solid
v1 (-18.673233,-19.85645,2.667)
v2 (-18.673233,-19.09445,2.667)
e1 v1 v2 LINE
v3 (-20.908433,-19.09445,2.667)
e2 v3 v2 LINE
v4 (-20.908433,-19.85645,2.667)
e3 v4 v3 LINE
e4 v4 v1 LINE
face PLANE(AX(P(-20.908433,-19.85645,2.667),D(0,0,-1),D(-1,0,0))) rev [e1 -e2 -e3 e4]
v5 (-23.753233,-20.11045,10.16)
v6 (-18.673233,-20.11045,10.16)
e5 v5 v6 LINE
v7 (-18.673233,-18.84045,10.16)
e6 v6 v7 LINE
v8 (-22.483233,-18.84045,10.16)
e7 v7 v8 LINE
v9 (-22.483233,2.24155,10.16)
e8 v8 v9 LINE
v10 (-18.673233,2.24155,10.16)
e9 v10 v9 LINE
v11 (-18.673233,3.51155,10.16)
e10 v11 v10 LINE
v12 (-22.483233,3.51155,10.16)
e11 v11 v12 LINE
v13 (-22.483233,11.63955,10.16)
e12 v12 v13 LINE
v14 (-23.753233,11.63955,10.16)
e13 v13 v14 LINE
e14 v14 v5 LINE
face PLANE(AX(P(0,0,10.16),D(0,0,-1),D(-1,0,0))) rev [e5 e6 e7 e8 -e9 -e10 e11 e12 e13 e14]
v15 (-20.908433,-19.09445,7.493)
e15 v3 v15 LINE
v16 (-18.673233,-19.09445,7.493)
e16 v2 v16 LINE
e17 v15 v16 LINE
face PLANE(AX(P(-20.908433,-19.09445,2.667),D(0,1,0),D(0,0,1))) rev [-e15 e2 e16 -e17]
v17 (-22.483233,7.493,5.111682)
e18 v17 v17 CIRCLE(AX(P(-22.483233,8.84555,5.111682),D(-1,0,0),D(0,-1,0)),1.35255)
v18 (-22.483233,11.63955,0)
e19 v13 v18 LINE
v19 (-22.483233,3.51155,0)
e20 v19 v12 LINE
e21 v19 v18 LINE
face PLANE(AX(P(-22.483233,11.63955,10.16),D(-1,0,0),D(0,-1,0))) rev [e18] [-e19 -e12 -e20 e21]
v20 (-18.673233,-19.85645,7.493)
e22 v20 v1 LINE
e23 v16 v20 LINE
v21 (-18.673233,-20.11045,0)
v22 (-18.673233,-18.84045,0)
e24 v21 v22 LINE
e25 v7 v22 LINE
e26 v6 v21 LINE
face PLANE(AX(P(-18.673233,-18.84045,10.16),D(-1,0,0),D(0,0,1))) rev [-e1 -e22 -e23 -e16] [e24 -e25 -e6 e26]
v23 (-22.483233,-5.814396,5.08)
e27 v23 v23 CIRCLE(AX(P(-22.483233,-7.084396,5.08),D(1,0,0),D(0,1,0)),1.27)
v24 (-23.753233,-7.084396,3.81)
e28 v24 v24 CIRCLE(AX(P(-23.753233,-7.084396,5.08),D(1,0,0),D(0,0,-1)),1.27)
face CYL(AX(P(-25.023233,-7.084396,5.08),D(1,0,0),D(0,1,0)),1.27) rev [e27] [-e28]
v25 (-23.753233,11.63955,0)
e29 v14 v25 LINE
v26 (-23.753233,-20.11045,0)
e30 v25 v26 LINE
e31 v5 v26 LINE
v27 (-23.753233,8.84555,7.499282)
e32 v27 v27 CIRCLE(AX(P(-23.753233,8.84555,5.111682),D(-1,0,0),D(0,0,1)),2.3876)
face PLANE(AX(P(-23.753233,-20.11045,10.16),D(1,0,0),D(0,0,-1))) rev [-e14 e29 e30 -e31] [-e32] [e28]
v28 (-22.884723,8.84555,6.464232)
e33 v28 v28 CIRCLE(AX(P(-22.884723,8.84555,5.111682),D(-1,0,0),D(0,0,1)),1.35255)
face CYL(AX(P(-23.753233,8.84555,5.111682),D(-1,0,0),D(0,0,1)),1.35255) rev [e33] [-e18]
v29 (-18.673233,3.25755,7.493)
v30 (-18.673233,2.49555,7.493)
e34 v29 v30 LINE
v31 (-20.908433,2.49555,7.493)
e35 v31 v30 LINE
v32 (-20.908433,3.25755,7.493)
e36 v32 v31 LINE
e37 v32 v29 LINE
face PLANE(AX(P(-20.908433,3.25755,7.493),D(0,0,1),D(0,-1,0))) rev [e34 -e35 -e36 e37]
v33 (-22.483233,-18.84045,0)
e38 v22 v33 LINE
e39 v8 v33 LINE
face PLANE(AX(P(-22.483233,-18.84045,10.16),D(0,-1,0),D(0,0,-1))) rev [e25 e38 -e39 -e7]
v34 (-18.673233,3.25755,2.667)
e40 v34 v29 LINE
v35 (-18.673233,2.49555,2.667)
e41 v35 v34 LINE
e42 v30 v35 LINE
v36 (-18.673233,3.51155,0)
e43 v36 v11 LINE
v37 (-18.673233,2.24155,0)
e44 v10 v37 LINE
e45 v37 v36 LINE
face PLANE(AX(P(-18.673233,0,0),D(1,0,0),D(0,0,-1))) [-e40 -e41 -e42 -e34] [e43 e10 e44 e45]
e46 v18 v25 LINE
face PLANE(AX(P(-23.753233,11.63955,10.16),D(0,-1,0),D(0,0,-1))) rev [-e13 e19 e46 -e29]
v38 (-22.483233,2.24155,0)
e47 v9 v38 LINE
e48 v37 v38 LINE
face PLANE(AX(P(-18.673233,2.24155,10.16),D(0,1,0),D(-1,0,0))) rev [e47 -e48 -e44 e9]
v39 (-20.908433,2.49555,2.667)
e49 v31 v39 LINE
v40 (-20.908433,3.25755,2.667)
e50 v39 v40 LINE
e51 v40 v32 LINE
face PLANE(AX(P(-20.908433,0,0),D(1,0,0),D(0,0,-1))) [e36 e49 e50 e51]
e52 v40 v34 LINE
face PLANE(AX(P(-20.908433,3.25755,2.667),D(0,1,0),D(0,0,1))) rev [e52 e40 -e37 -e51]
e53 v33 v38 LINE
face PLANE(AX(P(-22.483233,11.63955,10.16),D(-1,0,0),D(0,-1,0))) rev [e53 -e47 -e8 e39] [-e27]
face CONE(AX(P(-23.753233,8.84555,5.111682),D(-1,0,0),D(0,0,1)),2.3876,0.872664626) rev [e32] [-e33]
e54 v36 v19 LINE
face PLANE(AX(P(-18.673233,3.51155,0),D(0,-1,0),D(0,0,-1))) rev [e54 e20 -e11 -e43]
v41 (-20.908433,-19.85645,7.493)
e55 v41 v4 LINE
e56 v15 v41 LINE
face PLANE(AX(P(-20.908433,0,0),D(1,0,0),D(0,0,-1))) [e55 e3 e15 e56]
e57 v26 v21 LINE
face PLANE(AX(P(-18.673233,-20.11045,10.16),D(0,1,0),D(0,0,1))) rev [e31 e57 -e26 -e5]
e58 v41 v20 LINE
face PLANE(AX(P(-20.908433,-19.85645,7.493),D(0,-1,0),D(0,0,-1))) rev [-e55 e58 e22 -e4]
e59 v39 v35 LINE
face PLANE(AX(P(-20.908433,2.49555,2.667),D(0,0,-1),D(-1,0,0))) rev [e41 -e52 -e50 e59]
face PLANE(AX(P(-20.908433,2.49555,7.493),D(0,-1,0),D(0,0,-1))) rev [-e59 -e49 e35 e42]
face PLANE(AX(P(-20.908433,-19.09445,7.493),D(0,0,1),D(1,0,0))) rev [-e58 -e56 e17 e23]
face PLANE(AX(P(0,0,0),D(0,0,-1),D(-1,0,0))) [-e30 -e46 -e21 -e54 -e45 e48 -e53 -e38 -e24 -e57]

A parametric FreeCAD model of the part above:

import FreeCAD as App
import Part
import Sketcher
Q = App.Units.Quantity

doc = App.newDocument("Part")
params = doc.addObject("Spreadsheet::Sheet", "Params")
for row, (alias, value) in enumerate([
    ("sketch1_width", "0.2 in"),
    ("sketch1_height", "1.2 in"),
    ("sketch1_width2", "0.05 in"),
    ("pad1_length", "0.4 in"),
    ("sketch2_height", "0.4 in"),
    ("sketch2_width", "0.05 in"),
    ("pad2_length", "0.15 in"),
    ("sketch3_width", "0.03 in"),
    ("sketch3_height", "0.19 in"),
    ("pocket1_length", "0.088 in"),
    ("sketch4_width", "0.03 in"),
    ("sketch4_height", "0.19 in"),
    ("pocket2_length", "0.088 in"),
    ("sketch5_diameter", "0.1 in"),
    ("pocket3_length", "0.1 in"),
    ("hole_diameter", "0.1065 in"),
    ("hole_depth", "0.37 in"),
    ("hole_csink_diameter", "0.188 in"),
], start=1):
    params.set(f"A{row}", alias)
    params.set(f"B{row}", "=" + value)
    params.setAlias(f"B{row}", alias)

body = doc.addObject("PartDesign::Body", "Body")

# Sketch on XY plane
sketch1 = body.newObject("Sketcher::SketchObject", "Sketch")
sketch1.AttachmentSupport = (doc.getObject("XY_Plane"), [""])
sketch1.MapMode = "FlatFace"
sketch1.addGeometry([
    Part.LineSegment(App.Vector(-22.483233, -18.84045, 0), App.Vector(-22.483233, 11.63955, 0)),  # 0
    Part.LineSegment(App.Vector(-22.483233, 11.63955, 0), App.Vector(-23.753233, 11.63955, 0)),  # 1
    Part.LineSegment(App.Vector(-23.753233, 11.63955, 0), App.Vector(-23.753233, -20.11045, 0)),  # 2
    Part.LineSegment(App.Vector(-23.753233, -20.11045, 0), App.Vector(-18.673233, -20.11045, 0)),  # 3
    Part.LineSegment(App.Vector(-18.673233, -20.11045, 0), App.Vector(-18.673233, -18.84045, 0)),  # 4
    Part.LineSegment(App.Vector(-18.673233, -18.84045, 0), App.Vector(-22.483233, -18.84045, 0)),  # 5
], False)
sketch1.addConstraint([
    Sketcher.Constraint("Coincident", 0, 2, 1, 1),
    Sketcher.Constraint("Coincident", 1, 2, 2, 1),
    Sketcher.Constraint("Coincident", 2, 2, 3, 1),
    Sketcher.Constraint("Coincident", 3, 2, 4, 1),
    Sketcher.Constraint("Coincident", 4, 2, 5, 1),
    Sketcher.Constraint("Coincident", 5, 2, 0, 1),
    Sketcher.Constraint("Vertical", 0),
    Sketcher.Constraint("Horizontal", 1),
    Sketcher.Constraint("Vertical", 2),
    Sketcher.Constraint("Horizontal", 3),
    Sketcher.Constraint("Vertical", 4),
    Sketcher.Constraint("Horizontal", 5),
    Sketcher.Constraint("Equal", 1, 4),
    Sketcher.Constraint("DistanceX", 3, 1, 3, 2, Q("0.2 in")),
    Sketcher.Constraint("DistanceY", 0, 1, 0, 2, Q("1.2 in")),
    Sketcher.Constraint("DistanceX", 1, 2, 1, 1, Q("0.05 in")),
    Sketcher.Constraint("DistanceY", -1, 1, 0, 2, 11.63955),
    Sketcher.Constraint("DistanceX", 0, 2, -1, 1, 22.483233),
])
sketch1.setExpression("Constraints[13]", "Params.sketch1_width")
sketch1.setExpression("Constraints[14]", "Params.sketch1_height")
sketch1.setExpression("Constraints[15]", "Params.sketch1_width2")
pad1 = body.newObject("PartDesign::Pad", "Pad")
pad1.Profile = sketch1
pad1.setExpression("Length", "Params.pad1_length")

# Sketch on YZ plane
sketch2 = body.newObject("Sketcher::SketchObject", "Sketch001")
sketch2.AttachmentSupport = (doc.getObject("YZ_Plane"), [""])
sketch2.MapMode = "FlatFace"
sketch2.AttachmentOffset = App.Placement(App.Vector(0, 0, -22.483233), App.Rotation())
sketch2.addGeometry([
    Part.LineSegment(App.Vector(3.51155, 10.16, 0), App.Vector(2.24155, 10.16, 0)),
    Part.LineSegment(App.Vector(2.24155, 10.16, 0), App.Vector(2.24155, 0, 0)),
    Part.LineSegment(App.Vector(2.24155, 0, 0), App.Vector(3.51155, 0, 0)),
    Part.LineSegment(App.Vector(3.51155, 0, 0), App.Vector(3.51155, 10.16, 0)),
], False)
sketch2.addConstraint([
    Sketcher.Constraint("Coincident", 0, 2, 1, 1),
    Sketcher.Constraint("Coincident", 1, 2, 2, 1),
    Sketcher.Constraint("Coincident", 2, 2, 3, 1),
    Sketcher.Constraint("Coincident", 3, 2, 0, 1),
    Sketcher.Constraint("Horizontal", 0),
    Sketcher.Constraint("Vertical", 1),
    Sketcher.Constraint("Horizontal", 2),
    Sketcher.Constraint("Vertical", 3),
    Sketcher.Constraint("PointOnObject", 1, 2, -1),
    Sketcher.Constraint("DistanceY", 1, 2, 1, 1, Q("0.4 in")),
    Sketcher.Constraint("DistanceX", 0, 2, 0, 1, Q("0.05 in")),
    Sketcher.Constraint("DistanceX", -1, 1, 0, 2, 2.24155),
])
sketch2.setExpression("Constraints[9]", "Params.sketch2_height")
sketch2.setExpression("Constraints[10]", "Params.sketch2_width")
pad2 = body.newObject("PartDesign::Pad", "Pad001")
pad2.Profile = sketch2
pad2.setExpression("Length", "Params.pad2_length")

# Sketch on YZ plane
sketch3 = body.newObject("Sketcher::SketchObject", "Sketch002")
sketch3.AttachmentSupport = (doc.getObject("YZ_Plane"), [""])
sketch3.MapMode = "FlatFace"
sketch3.AttachmentOffset = App.Placement(App.Vector(0, 0, -18.673233), App.Rotation())
sketch3.addGeometry([
    Part.LineSegment(App.Vector(3.25755, 7.493, 0), App.Vector(2.49555, 7.493, 0)),
    Part.LineSegment(App.Vector(2.49555, 7.493, 0), App.Vector(2.49555, 2.667, 0)),
    Part.LineSegment(App.Vector(2.49555, 2.667, 0), App.Vector(3.25755, 2.667, 0)),
    Part.LineSegment(App.Vector(3.25755, 2.667, 0), App.Vector(3.25755, 7.493, 0)),
], False)
sketch3.addConstraint([
    Sketcher.Constraint("Coincident", 0, 2, 1, 1),
    Sketcher.Constraint("Coincident", 1, 2, 2, 1),
    Sketcher.Constraint("Coincident", 2, 2, 3, 1),
    Sketcher.Constraint("Coincident", 3, 2, 0, 1),
    Sketcher.Constraint("Horizontal", 0),
    Sketcher.Constraint("Vertical", 1),
    Sketcher.Constraint("Horizontal", 2),
    Sketcher.Constraint("Vertical", 3),
    Sketcher.Constraint("DistanceX", 0, 2, 0, 1, Q("0.03 in")),
    Sketcher.Constraint("DistanceY", 1, 2, 1, 1, Q("0.19 in")),
    Sketcher.Constraint("DistanceY", -1, 1, 0, 2, Q("0.295 in")),
    Sketcher.Constraint("DistanceX", -1, 1, 0, 2, 2.49555),
])
sketch3.setExpression("Constraints[8]", "Params.sketch3_width")
sketch3.setExpression("Constraints[9]", "Params.sketch3_height")
pocket1 = body.newObject("PartDesign::Pocket", "Pocket")
pocket1.Profile = sketch3
pocket1.setExpression("Length", "Params.pocket1_length")

# Sketch on YZ plane
sketch4 = body.newObject("Sketcher::SketchObject", "Sketch003")
sketch4.AttachmentSupport = (doc.getObject("YZ_Plane"), [""])
sketch4.MapMode = "FlatFace"
sketch4.AttachmentOffset = App.Placement(App.Vector(0, 0, -18.673233), App.Rotation())
sketch4.addGeometry([
    Part.LineSegment(App.Vector(-19.09445, 7.493, 0), App.Vector(-19.85645, 7.493, 0)),
    Part.LineSegment(App.Vector(-19.85645, 7.493, 0), App.Vector(-19.85645, 2.667, 0)),
    Part.LineSegment(App.Vector(-19.85645, 2.667, 0), App.Vector(-19.09445, 2.667, 0)),
    Part.LineSegment(App.Vector(-19.09445, 2.667, 0), App.Vector(-19.09445, 7.493, 0)),
], False)
sketch4.addConstraint([
    Sketcher.Constraint("Coincident", 0, 2, 1, 1),
    Sketcher.Constraint("Coincident", 1, 2, 2, 1),
    Sketcher.Constraint("Coincident", 2, 2, 3, 1),
    Sketcher.Constraint("Coincident", 3, 2, 0, 1),
    Sketcher.Constraint("Horizontal", 0),
    Sketcher.Constraint("Vertical", 1),
    Sketcher.Constraint("Horizontal", 2),
    Sketcher.Constraint("Vertical", 3),
    Sketcher.Constraint("DistanceX", 0, 2, 0, 1, Q("0.03 in")),
    Sketcher.Constraint("DistanceY", 1, 2, 1, 1, Q("0.19 in")),
    Sketcher.Constraint("DistanceY", -1, 1, 0, 2, Q("0.295 in")),
    Sketcher.Constraint("DistanceX", 0, 2, -1, 1, 19.85645),
])
sketch4.setExpression("Constraints[8]", "Params.sketch4_width")
sketch4.setExpression("Constraints[9]", "Params.sketch4_height")
pocket2 = body.newObject("PartDesign::Pocket", "Pocket001")
pocket2.Profile = sketch4
pocket2.setExpression("Length", "Params.pocket2_length")

# Sketch on YZ plane
sketch5 = body.newObject("Sketcher::SketchObject", "Sketch004")
sketch5.AttachmentSupport = (doc.getObject("YZ_Plane"), [""])
sketch5.MapMode = "FlatFace"
sketch5.AttachmentOffset = App.Placement(App.Vector(0, 0, -22.483233), App.Rotation())
sketch5.addGeometry(Part.Circle(App.Vector(-7.084396, 5.08, 0), App.Vector(0, 0, 1), 1.27), False)
sketch5.addConstraint([
    Sketcher.Constraint("Diameter", 0, Q("0.1 in")),
    Sketcher.Constraint("DistanceY", -1, 1, 0, 3, Q("0.2 in")),
    Sketcher.Constraint("DistanceX", 0, 3, -1, 1, 7.084396),
])
sketch5.setExpression("Constraints[0]", "Params.sketch5_diameter")
pocket3 = body.newObject("PartDesign::Pocket", "Pocket002")
pocket3.Profile = sketch5
pocket3.setExpression("Length", "Params.pocket3_length")

# Sketch on YZ plane
sketch6 = body.newObject("Sketcher::SketchObject", "Sketch005")
sketch6.AttachmentSupport = (doc.getObject("YZ_Plane"), [""])
sketch6.MapMode = "FlatFace"
sketch6.AttachmentOffset = App.Placement(App.Vector(0, 0, -23.753233), App.Rotation())
sketch6.addGeometry(Part.Circle(App.Vector(8.84555, 5.111682, 0), App.Vector(0, 0, 1), 1.35255), False)
sketch6.addConstraint([
    Sketcher.Constraint("Diameter", 0, Q("0.1065 in")),
    Sketcher.Constraint("DistanceX", -1, 1, 0, 3, 8.84555),
    Sketcher.Constraint("DistanceY", -1, 1, 0, 3, 5.111682),
])
doc.recompute()
hole = body.newObject("PartDesign::Hole", "Hole")
hole.Profile = sketch6
hole.ThreadType = "None"
hole.setExpression("Diameter", "Params.hole_diameter")
hole.DepthType = "Dimension"
hole.setExpression("Depth", "Params.hole_depth")
hole.DrillPoint = "Angled"
hole.DrillPointAngle = 118
hole.HoleCutType = "Countersink"
hole.setExpression("HoleCutDiameter", "Params.hole_csink_diameter")
hole.HoleCutCountersinkAngle = 100
hole.Reversed = True

doc.recompute()
